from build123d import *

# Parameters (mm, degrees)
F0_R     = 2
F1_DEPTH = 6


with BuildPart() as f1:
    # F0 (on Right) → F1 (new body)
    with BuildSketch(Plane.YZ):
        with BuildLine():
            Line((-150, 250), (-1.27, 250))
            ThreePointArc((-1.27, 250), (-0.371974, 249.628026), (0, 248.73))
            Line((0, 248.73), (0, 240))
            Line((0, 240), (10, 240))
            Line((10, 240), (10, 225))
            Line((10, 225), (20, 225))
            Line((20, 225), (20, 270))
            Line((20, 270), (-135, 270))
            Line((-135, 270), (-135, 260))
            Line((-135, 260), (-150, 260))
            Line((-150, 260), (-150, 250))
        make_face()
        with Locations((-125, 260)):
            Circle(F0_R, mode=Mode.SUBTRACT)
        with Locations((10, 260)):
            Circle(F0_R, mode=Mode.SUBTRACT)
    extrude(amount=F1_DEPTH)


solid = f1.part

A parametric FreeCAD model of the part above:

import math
import FreeCAD as App
import Part
import Sketcher
from FreeCAD import Vector

doc = App.newDocument("Part")
body = doc.addObject("PartDesign::Body", "Body")

sketch1 = body.newObject("Sketcher::SketchObject", "Sketch")
sketch1.AttachmentSupport = (doc.getObject("YZ_Plane"), [""])
sketch1.MapMode = "FlatFace"
sketch1.addGeometry([
    Part.LineSegment(Vector(-150, 250, 0), Vector(-1.3, 250, 0)),
    Part.ArcOfCircle(Part.Circle(Vector(-1.3, 248.7, 0), Vector(0, 0, 1), 1.3), math.radians(0), math.radians(90)),
    Part.LineSegment(Vector(0, 248.7, 0), Vector(0, 240, 0)),
    Part.LineSegment(Vector(0, 240, 0), Vector(10, 240, 0)),
    Part.LineSegment(Vector(10, 240, 0), Vector(10, 225, 0)),
    Part.LineSegment(Vector(10, 225, 0), Vector(20, 225, 0)),
    Part.LineSegment(Vector(20, 225, 0), Vector(20, 270, 0)),
    Part.LineSegment(Vector(20, 270, 0), Vector(-135, 270, 0)),
    Part.LineSegment(Vector(-135, 270, 0), Vector(-135, 260, 0)),
    Part.LineSegment(Vector(-135, 260, 0), Vector(-150, 260, 0)),
    Part.LineSegment(Vector(-150, 260, 0), Vector(-150, 250, 0)),
    Part.Circle(Vector(-125, 260, 0), Vector(0, 0, 1), 2),
    Part.Circle(Vector(10, 260, 0), Vector(0, 0, 1), 2),
], False)
sketch1.addConstraint([
    Sketcher.Constraint("Tangent", 0, 2, 1, 2),
    Sketcher.Constraint("Tangent", 1, 1, 2, 1),
    Sketcher.Constraint("Coincident", 2, 2, 3, 1),
    Sketcher.Constraint("Coincident", 3, 2, 4, 1),
    Sketcher.Constraint("Coincident", 4, 2, 5, 1),
    Sketcher.Constraint("Coincident", 5, 2, 6, 1),
    Sketcher.Constraint("Coincident", 6, 2, 7, 1),
    Sketcher.Constraint("Coincident", 7, 2, 8, 1),
    Sketcher.Constraint("Coincident", 8, 2, 9, 1),
    Sketcher.Constraint("Coincident", 9, 2, 10, 1),
    Sketcher.Constraint("Coincident", 10, 2, 0, 1),
    Sketcher.Constraint("Horizontal", 0),
    Sketcher.Constraint("Vertical", 2),
    Sketcher.Constraint("Horizontal", 3),
    Sketcher.Constraint("Vertical", 4),
    Sketcher.Constraint("Horizontal", 5),
    Sketcher.Constraint("Vertical", 6),
    Sketcher.Constraint("Horizontal", 7),
    Sketcher.Constraint("Vertical", 8),
    Sketcher.Constraint("Horizontal", 9),
    Sketcher.Constraint("Vertical", 10),
    Sketcher.Constraint("Equal", 11, 12),
    Sketcher.Constraint("PointOnObject", 1, 1, -2),
    Sketcher.Constraint("Horizontal", 11, 3, 12, 3),
    Sketcher.Constraint("Horizontal", 12, 3, 8, 2),
    Sketcher.Constraint("Vertical", 12, 3, 3, 2),
    Sketcher.Constraint("Equal", 3, 5),
    Sketcher.Constraint("Equal", 9, 4),
    Sketcher.Constraint("Equal", 5, 8),
    Sketcher.Constraint("Equal", 8, 10),
    Sketcher.Constraint("Diameter", 11, 4.0),
    Sketcher.Constraint("DistanceX", 3, 1, 3, 2, 10.0),
    Sketcher.Constraint("DistanceX", 7, 2, 7, 1, 155.0),
    Sketcher.Constraint("DistanceX", 9, 2, 9, 1, 15.0),
    Sketcher.Constraint("DistanceY", 6, 1, 6, 2, 45.0),
    Sketcher.Constraint("Radius", 1, 1.269999),
    Sketcher.Constraint("DistanceX", 11, 3, -1, 1, 125.0),
    Sketcher.Constraint("DistanceY", -1, 1, 11, 3, 260.0),
])
pad1 = body.newObject("PartDesign::Pad", "Pad")
pad1.Profile = sketch1
pad1.Length = 6

doc.recompute()
